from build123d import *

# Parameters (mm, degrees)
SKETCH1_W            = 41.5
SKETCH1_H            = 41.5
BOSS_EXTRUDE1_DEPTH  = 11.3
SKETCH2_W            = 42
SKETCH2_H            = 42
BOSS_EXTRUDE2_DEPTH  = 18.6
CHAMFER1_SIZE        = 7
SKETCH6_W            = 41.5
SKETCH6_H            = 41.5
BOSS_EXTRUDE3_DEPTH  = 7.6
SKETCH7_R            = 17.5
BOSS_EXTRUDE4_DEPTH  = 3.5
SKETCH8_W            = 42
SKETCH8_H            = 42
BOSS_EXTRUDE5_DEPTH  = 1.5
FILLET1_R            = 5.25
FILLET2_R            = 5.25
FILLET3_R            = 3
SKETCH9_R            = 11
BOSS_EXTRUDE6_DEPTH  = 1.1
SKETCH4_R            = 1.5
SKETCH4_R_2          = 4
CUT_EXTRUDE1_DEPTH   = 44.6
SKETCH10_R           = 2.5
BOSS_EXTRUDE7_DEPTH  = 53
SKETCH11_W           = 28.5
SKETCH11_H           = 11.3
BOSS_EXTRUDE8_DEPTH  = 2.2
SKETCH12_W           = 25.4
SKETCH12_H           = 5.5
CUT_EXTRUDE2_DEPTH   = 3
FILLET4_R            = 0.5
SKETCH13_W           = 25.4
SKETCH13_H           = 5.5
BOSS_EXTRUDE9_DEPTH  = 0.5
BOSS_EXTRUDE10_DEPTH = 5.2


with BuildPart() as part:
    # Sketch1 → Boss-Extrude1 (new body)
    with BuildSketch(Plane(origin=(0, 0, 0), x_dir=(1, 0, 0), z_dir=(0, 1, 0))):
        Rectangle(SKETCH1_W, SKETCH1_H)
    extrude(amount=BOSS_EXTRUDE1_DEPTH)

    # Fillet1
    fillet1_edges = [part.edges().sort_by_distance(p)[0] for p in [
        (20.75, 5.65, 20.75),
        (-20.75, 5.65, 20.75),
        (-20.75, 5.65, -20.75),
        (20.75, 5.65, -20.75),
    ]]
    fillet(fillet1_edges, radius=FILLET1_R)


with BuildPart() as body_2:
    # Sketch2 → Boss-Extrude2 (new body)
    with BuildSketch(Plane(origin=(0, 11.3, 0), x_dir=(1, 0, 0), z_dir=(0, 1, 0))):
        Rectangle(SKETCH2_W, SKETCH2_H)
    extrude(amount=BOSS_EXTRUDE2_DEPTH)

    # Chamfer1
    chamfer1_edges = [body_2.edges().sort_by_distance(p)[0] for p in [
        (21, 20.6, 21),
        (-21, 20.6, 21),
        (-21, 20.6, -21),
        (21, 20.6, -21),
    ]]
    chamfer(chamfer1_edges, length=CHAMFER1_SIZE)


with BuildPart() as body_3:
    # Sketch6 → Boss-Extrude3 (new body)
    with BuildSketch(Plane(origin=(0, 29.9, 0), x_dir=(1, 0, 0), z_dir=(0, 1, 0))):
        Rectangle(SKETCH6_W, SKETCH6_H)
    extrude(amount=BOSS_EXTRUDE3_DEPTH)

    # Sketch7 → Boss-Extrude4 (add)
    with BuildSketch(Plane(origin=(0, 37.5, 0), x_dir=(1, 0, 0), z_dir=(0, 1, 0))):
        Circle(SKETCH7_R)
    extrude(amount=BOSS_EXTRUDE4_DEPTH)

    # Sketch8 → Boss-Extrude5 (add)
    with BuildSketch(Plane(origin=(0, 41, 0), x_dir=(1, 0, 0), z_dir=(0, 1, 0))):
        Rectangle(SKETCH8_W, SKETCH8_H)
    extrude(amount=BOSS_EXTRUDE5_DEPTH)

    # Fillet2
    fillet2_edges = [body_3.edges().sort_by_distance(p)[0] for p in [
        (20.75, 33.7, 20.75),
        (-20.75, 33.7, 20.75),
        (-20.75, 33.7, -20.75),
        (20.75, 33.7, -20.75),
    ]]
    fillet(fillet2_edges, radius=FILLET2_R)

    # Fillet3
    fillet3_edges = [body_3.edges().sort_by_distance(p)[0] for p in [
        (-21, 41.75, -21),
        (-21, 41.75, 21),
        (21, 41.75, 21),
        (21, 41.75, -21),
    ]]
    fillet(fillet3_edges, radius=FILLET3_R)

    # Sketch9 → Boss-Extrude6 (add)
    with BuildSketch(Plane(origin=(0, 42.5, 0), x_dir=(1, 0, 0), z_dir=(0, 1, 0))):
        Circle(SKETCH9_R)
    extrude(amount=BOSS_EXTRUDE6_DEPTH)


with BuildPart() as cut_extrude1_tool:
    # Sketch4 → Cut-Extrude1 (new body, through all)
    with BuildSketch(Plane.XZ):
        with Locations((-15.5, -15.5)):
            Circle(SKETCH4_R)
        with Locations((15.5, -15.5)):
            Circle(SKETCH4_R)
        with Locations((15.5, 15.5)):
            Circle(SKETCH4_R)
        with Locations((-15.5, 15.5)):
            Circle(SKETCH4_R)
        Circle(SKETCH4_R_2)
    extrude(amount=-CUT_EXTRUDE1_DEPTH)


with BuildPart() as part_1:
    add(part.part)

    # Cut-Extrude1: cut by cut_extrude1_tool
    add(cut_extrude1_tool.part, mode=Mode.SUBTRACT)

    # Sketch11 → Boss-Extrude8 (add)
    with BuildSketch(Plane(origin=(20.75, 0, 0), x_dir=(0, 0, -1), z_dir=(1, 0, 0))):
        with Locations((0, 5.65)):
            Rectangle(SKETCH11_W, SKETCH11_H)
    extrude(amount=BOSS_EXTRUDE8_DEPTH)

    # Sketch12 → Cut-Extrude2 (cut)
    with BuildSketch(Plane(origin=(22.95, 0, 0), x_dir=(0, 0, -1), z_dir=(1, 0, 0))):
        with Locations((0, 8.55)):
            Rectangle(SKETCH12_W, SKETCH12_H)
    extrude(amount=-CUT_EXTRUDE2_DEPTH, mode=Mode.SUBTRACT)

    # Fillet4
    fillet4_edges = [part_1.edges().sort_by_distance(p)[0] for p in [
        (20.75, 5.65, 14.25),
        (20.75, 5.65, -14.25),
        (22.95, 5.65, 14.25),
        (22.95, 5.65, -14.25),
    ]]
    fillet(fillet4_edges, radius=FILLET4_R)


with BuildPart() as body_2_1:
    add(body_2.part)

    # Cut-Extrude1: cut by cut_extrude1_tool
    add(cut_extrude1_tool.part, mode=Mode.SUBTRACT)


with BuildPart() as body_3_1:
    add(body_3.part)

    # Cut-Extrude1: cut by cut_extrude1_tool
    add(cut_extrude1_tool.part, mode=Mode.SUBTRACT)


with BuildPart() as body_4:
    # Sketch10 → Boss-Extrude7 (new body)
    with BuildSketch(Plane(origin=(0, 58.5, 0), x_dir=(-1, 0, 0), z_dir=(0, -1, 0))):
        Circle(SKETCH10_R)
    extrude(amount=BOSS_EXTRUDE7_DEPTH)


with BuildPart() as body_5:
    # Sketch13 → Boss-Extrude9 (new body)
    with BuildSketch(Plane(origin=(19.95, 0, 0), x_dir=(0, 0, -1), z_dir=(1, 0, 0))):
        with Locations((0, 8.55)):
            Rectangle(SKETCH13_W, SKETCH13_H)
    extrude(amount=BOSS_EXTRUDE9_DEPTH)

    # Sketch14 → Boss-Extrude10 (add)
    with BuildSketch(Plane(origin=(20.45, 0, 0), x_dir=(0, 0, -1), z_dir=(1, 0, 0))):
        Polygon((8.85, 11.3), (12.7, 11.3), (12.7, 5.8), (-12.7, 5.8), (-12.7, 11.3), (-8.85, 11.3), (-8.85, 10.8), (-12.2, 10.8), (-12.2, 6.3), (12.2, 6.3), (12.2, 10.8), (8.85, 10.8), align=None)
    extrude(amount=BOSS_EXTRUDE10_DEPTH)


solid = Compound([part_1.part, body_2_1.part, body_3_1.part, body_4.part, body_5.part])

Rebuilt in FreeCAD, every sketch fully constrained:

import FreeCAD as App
import Part
import Sketcher
from FreeCAD import Vector


def edges_at(feature, points):
    """Names of the edges that pass closest to the given points."""
    edges = feature.Shape.Edges
    near = lambda p: min(range(len(edges)), key=lambda i: edges[i].distToShape(Part.Vertex(*p))[0])
    return sorted({f"Edge{near(p) + 1}" for p in points})

doc = App.newDocument("Part")
body = doc.addObject("PartDesign::Body", "Body")

# Sketch on XZ plane
sketch1 = doc.addObject("Sketcher::SketchObject", "Sketch")
body.addObject(sketch1)
sketch1.AttachmentSupport = (doc.XZ_Plane, [""])
sketch1.MapMode = "FlatFace"
sketch1.addGeometry([
    Part.LineSegment(Vector(-21, -21, 0), Vector(-21, 21, 0)),
    Part.LineSegment(Vector(-21, 21, 0), Vector(21, 21, 0)),
    Part.LineSegment(Vector(21, 21, 0), Vector(21, -21, 0)),
    Part.LineSegment(Vector(21, -21, 0), Vector(-21, -21, 0)),
], False)
sketch1.addConstraint([
    Sketcher.Constraint("Coincident", 0, 2, 1, 1),
    Sketcher.Constraint("Coincident", 1, 2, 2, 1),
    Sketcher.Constraint("Coincident", 2, 2, 3, 1),
    Sketcher.Constraint("Coincident", 3, 2, 0, 1),
    Sketcher.Constraint("Vertical", 0),
    Sketcher.Constraint("Horizontal", 1),
    Sketcher.Constraint("Vertical", 2),
    Sketcher.Constraint("Horizontal", 3),
    Sketcher.Constraint("Symmetric", 0, 2, 2, 2, -1, 1),
    Sketcher.Constraint("Equal", 3, 0),
    Sketcher.Constraint("DistanceX", 1, 1, 1, 2, 41.5),
])
pad1 = doc.addObject("PartDesign::Pad", "Pad")
body.addObject(pad1)
pad1.Profile = sketch1
pad1.Length = 11.3
pad1.Reversed = True
doc.recompute()

fillet = doc.addObject("PartDesign::Fillet", "Fillet")
body.addObject(fillet)
fillet.Base = (pad1, edges_at(pad1, [
    (20.75, 5.65, 20.75),
    (-20.75, 5.65, 20.75),
    (-20.75, 5.65, -20.75),
    (20.75, 5.65, -20.75),
]))
fillet.Radius = 5.25
body2 = doc.addObject("PartDesign::Body", "Body001")

# Sketch on XZ plane
sketch2 = doc.addObject("Sketcher::SketchObject", "Sketch001")
body2.addObject(sketch2)
sketch2.AttachmentSupport = (doc.getObject("XZ_Plane001"), [""])
sketch2.MapMode = "FlatFace"
sketch2.AttachmentOffset = App.Placement(Vector(0, 0, -11.3), App.Rotation())
sketch2.addGeometry([
    Part.LineSegment(Vector(-21, -21, 0), Vector(-21, 21, 0)),
    Part.LineSegment(Vector(-21, 21, 0), Vector(21, 21, 0)),
    Part.LineSegment(Vector(21, 21, 0), Vector(21, -21, 0)),
    Part.LineSegment(Vector(21, -21, 0), Vector(-21, -21, 0)),
], False)
sketch2.addConstraint([
    Sketcher.Constraint("Coincident", 0, 2, 1, 1),
    Sketcher.Constraint("Coincident", 1, 2, 2, 1),
    Sketcher.Constraint("Coincident", 2, 2, 3, 1),
    Sketcher.Constraint("Coincident", 3, 2, 0, 1),
    Sketcher.Constraint("Vertical", 0),
    Sketcher.Constraint("Horizontal", 1),
    Sketcher.Constraint("Vertical", 2),
    Sketcher.Constraint("Horizontal", 3),
    Sketcher.Constraint("Symmetric", 0, 2, 2, 2, -1, 1),
    Sketcher.Constraint("Equal", 3, 0),
    Sketcher.Constraint("DistanceX", 1, 1, 1, 2, 42.0),
])
pad2 = doc.addObject("PartDesign::Pad", "Pad001")
body2.addObject(pad2)
pad2.Profile = sketch2
pad2.Length = 18.6
pad2.Reversed = True
doc.recompute()

chamfer = doc.addObject("PartDesign::Chamfer", "Chamfer")
body2.addObject(chamfer)
chamfer.Base = (pad2, edges_at(pad2, [
    (21, 20.6, 21),
    (-21, 20.6, 21),
    (-21, 20.6, -21),
    (21, 20.6, -21),
]))
chamfer.Size = 7
body3 = doc.addObject("PartDesign::Body", "Body002")

# Sketch on XZ plane
sketch3 = doc.addObject("Sketcher::SketchObject", "Sketch002")
body3.addObject(sketch3)
sketch3.AttachmentSupport = (doc.getObject("XZ_Plane002"), [""])
sketch3.MapMode = "FlatFace"
sketch3.AttachmentOffset = App.Placement(Vector(0, 0, -29.9), App.Rotation())
sketch3.addGeometry([
    Part.LineSegment(Vector(-21, -21, 0), Vector(-21, 21, 0)),
    Part.LineSegment(Vector(-21, 21, 0), Vector(21, 21, 0)),
    Part.LineSegment(Vector(21, 21, 0), Vector(21, -21, 0)),
    Part.LineSegment(Vector(21, -21, 0), Vector(-21, -21, 0)),
], False)
sketch3.addConstraint([
    Sketcher.Constraint("Coincident", 0, 2, 1, 1),
    Sketcher.Constraint("Coincident", 1, 2, 2, 1),
    Sketcher.Constraint("Coincident", 2, 2, 3, 1),
    Sketcher.Constraint("Coincident", 3, 2, 0, 1),
    Sketcher.Constraint("Vertical", 0),
    Sketcher.Constraint("Horizontal", 1),
    Sketcher.Constraint("Vertical", 2),
    Sketcher.Constraint("Horizontal", 3),
    Sketcher.Constraint("Symmetric", 0, 2, 2, 2, -1, 1),
    Sketcher.Constraint("Equal", 3, 0),
    Sketcher.Constraint("DistanceX", 1, 1, 1, 2, 41.5),
])
pad3 = doc.addObject("PartDesign::Pad", "Pad002")
body3.addObject(pad3)
pad3.Profile = sketch3
pad3.Length = 7.6
pad3.Reversed = True

# Sketch on XZ plane
sketch4 = doc.addObject("Sketcher::SketchObject", "Sketch003")
body3.addObject(sketch4)
sketch4.AttachmentSupport = (doc.getObject("XZ_Plane002"), [""])
sketch4.MapMode = "FlatFace"
sketch4.AttachmentOffset = App.Placement(Vector(0, 0, -37.5), App.Rotation())
sketch4.addGeometry(Part.Circle(Vector(0, 0, 0), Vector(0, 0, 1), 18), False)
sketch4.addConstraint([
    Sketcher.Constraint("Coincident", 0, 3, -1, 1),
    Sketcher.Constraint("Diameter", 0, 35.0),
])
pad4 = doc.addObject("PartDesign::Pad", "Pad003")
body3.addObject(pad4)
pad4.Profile = sketch4
pad4.Length = 3.5
pad4.Reversed = True

# Sketch on XZ plane
sketch5 = doc.addObject("Sketcher::SketchObject", "Sketch004")
body3.addObject(sketch5)
sketch5.AttachmentSupport = (doc.getObject("XZ_Plane002"), [""])
sketch5.MapMode = "FlatFace"
sketch5.AttachmentOffset = App.Placement(Vector(0, 0, -41), App.Rotation())
sketch5.addGeometry([
    Part.LineSegment(Vector(-21, -21, 0), Vector(-21, 21, 0)),
    Part.LineSegment(Vector(-21, 21, 0), Vector(21, 21, 0)),
    Part.LineSegment(Vector(21, 21, 0), Vector(21, -21, 0)),
    Part.LineSegment(Vector(21, -21, 0), Vector(-21, -21, 0)),
], False)
sketch5.addConstraint([
    Sketcher.Constraint("Coincident", 0, 2, 1, 1),
    Sketcher.Constraint("Coincident", 1, 2, 2, 1),
    Sketcher.Constraint("Coincident", 2, 2, 3, 1),
    Sketcher.Constraint("Coincident", 3, 2, 0, 1),
    Sketcher.Constraint("Vertical", 0),
    Sketcher.Constraint("Horizontal", 1),
    Sketcher.Constraint("Vertical", 2),
    Sketcher.Constraint("Horizontal", 3),
    Sketcher.Constraint("Symmetric", 0, 2, 2, 2, -1, 1),
    Sketcher.Constraint("Equal", 3, 0),
    Sketcher.Constraint("DistanceX", 1, 1, 1, 2, 42.0),
])
pad5 = doc.addObject("PartDesign::Pad", "Pad004")
body3.addObject(pad5)
pad5.Profile = sketch5
pad5.Length = 1.5
pad5.Reversed = True
doc.recompute()

fillet2 = doc.addObject("PartDesign::Fillet", "Fillet001")
body3.addObject(fillet2)
fillet2.Base = (pad5, edges_at(pad5, [
    (20.75, 33.7, 20.75),
    (-20.75, 33.7, 20.75),
    (-20.75, 33.7, -20.75),
    (20.75, 33.7, -20.75),
]))
fillet2.Radius = 5.25
doc.recompute()

fillet3 = doc.addObject("PartDesign::Fillet", "Fillet002")
body3.addObject(fillet3)
fillet3.Base = (fillet2, edges_at(fillet2, [
    (-21, 41.75, -21),
    (-21, 41.75, 21),
    (21, 41.75, 21),
    (21, 41.75, -21),
]))
fillet3.Radius = 3

# Sketch on XZ plane
sketch6 = doc.addObject("Sketcher::SketchObject", "Sketch005")
body3.addObject(sketch6)
sketch6.AttachmentSupport = (doc.getObject("XZ_Plane002"), [""])
sketch6.MapMode = "FlatFace"
sketch6.AttachmentOffset = App.Placement(Vector(0, 0, -42.5), App.Rotation())
sketch6.addGeometry(Part.Circle(Vector(0, 0, 0), Vector(0, 0, 1), 11), False)
sketch6.addConstraint([
    Sketcher.Constraint("Coincident", 0, 3, -1, 1),
    Sketcher.Constraint("Diameter", 0, 22.0),
])
pad6 = doc.addObject("PartDesign::Pad", "Pad005")
body3.addObject(pad6)
pad6.Profile = sketch6
pad6.Length = 1.1
pad6.Reversed = True
body4 = doc.addObject("PartDesign::Body", "Body003")
body4.AllowCompound = True

# Sketch on XZ plane
sketch7 = doc.addObject("Sketcher::SketchObject", "Sketch006")
body4.addObject(sketch7)
sketch7.AttachmentSupport = (doc.getObject("XZ_Plane003"), [""])
sketch7.MapMode = "FlatFace"
sketch7.addGeometry([
    Part.Circle(Vector(-15.5, -15.5, 0), Vector(0, 0, 1), 1.5),  # 0
    Part.Circle(Vector(15.5, -15.5, 0), Vector(0, 0, 1), 1.5),  # 1
    Part.Circle(Vector(15.5, 15.5, 0), Vector(0, 0, 1), 1.5),  # 2
    Part.Circle(Vector(-15.5, 15.5, 0), Vector(0, 0, 1), 1.5),  # 3
    Part.Circle(Vector(0, 0, 0), Vector(0, 0, 1), 4),  # 4
], False)
sketch7.addConstraint([
    Sketcher.Constraint("Coincident", 4, 3, -1, 1),
    Sketcher.Constraint("Equal", 0, 1),
    Sketcher.Constraint("Equal", 1, 2),
    Sketcher.Constraint("Equal", 2, 3),
    Sketcher.Constraint("Symmetric", 0, 3, 2, 3, -1, 1),
    Sketcher.Constraint("Symmetric", 1, 3, 3, 3, -1, 1),
    Sketcher.Constraint("Symmetric", 0, 3, 1, 3, -2),
    Sketcher.Constraint("Diameter", 0, 3.0),
    Sketcher.Constraint("Diameter", 4, 8.0),
    Sketcher.Constraint("DistanceX", 0, 3, 1, 3, 31.0),
    Sketcher.Constraint("DistanceY", 1, 3, 2, 3, 31.0),
])
pad7 = doc.addObject("PartDesign::Pad", "Pad006")
body4.addObject(pad7)
pad7.Profile = sketch7
pad7.Length = 44.6
pad7.Reversed = True
doc.recompute()

body5 = doc.addObject("PartDesign::Body", "Body004")
body5.BaseFeature = body4
boolean = doc.addObject("PartDesign::Boolean", "Boolean")
body.addObject(boolean)
boolean.Type = "Cut"
boolean.addObjects([body5])
doc.recompute()

# Sketch on YZ plane
sketch8 = doc.addObject("Sketcher::SketchObject", "Sketch007")
body.addObject(sketch8)
sketch8.AttachmentSupport = (doc.YZ_Plane, [""])
sketch8.MapMode = "FlatFace"
sketch8.AttachmentOffset = App.Placement(Vector(0, 0, 20.75), App.Rotation())
sketch8.addGeometry([
    Part.LineSegment(Vector(11, 14, 0), Vector(0, 14, 0)),
    Part.LineSegment(Vector(0, 14, 0), Vector(0, -14, 0)),
    Part.LineSegment(Vector(0, -14, 0), Vector(11, -14, 0)),
    Part.LineSegment(Vector(11, -14, 0), Vector(11, 14, 0)),
], False)
sketch8.addConstraint([
    Sketcher.Constraint("Coincident", 0, 2, 1, 1),
    Sketcher.Constraint("Coincident", 1, 2, 2, 1),
    Sketcher.Constraint("Coincident", 2, 2, 3, 1),
    Sketcher.Constraint("Coincident", 3, 2, 0, 1),
    Sketcher.Constraint("Horizontal", 0),
    Sketcher.Constraint("Vertical", 1),
    Sketcher.Constraint("Horizontal", 2),
    Sketcher.Constraint("Vertical", 3),
    Sketcher.Constraint("Symmetric", 0, 2, 1, 2, -1, 1),
    Sketcher.Constraint("DistanceX", 0, 2, 0, 1, 11.3),
    Sketcher.Constraint("DistanceY", 1, 2, 1, 1, 28.5),
])
pad8 = doc.addObject("PartDesign::Pad", "Pad007")
body.addObject(pad8)
pad8.Profile = sketch8
pad8.Length = 2.2

# Sketch on YZ plane
sketch9 = doc.addObject("Sketcher::SketchObject", "Sketch008")
body.addObject(sketch9)
sketch9.AttachmentSupport = (doc.YZ_Plane, [""])
sketch9.MapMode = "FlatFace"
sketch9.AttachmentOffset = App.Placement(Vector(0, 0, 22.95), App.Rotation())
sketch9.addGeometry([
    Part.LineSegment(Vector(11, 13, 0), Vector(6, 13, 0)),
    Part.LineSegment(Vector(6, 13, 0), Vector(6, -13, 0)),
    Part.LineSegment(Vector(6, -13, 0), Vector(11, -13, 0)),
    Part.LineSegment(Vector(11, -13, 0), Vector(11, 13, 0)),
], False)
sketch9.addConstraint([
    Sketcher.Constraint("Coincident", 0, 2, 1, 1),
    Sketcher.Constraint("Coincident", 1, 2, 2, 1),
    Sketcher.Constraint("Coincident", 2, 2, 3, 1),
    Sketcher.Constraint("Coincident", 3, 2, 0, 1),
    Sketcher.Constraint("Horizontal", 0),
    Sketcher.Constraint("Vertical", 1),
    Sketcher.Constraint("Horizontal", 2),
    Sketcher.Constraint("Vertical", 3),
    Sketcher.Constraint("DistanceX", 0, 2, 0, 1, 5.5),
    Sketcher.Constraint("DistanceY", 1, 2, 1, 1, 25.4),
    Sketcher.Constraint("DistanceX", -1, 1, 0, 2, 5.8),
    Sketcher.Constraint("DistanceY", -1, 1, 0, 2, 12.7),
])
pocket1 = doc.addObject("PartDesign::Pocket", "Pocket")
body.addObject(pocket1)
pocket1.Profile = sketch9
pocket1.Length = 3
doc.recompute()

fillet4 = doc.addObject("PartDesign::Fillet", "Fillet003")
body.addObject(fillet4)
fillet4.Base = (pocket1, edges_at(pocket1, [
    (20.75, 5.65, 14.25),
    (20.75, 5.65, -14.25),
    (22.95, 5.65, 14.25),
    (22.95, 5.65, -14.25),
]))
fillet4.Radius = 0.5
doc.recompute()

body6 = doc.addObject("PartDesign::Body", "Body005")
body6.BaseFeature = body4
boolean2 = doc.addObject("PartDesign::Boolean", "Boolean001")
body2.addObject(boolean2)
boolean2.Type = "Cut"
boolean2.addObjects([body6])
doc.recompute()

boolean3 = doc.addObject("PartDesign::Boolean", "Boolean002")
body3.addObject(boolean3)
boolean3.Type = "Cut"
boolean3.addObjects([body4])
body7 = doc.addObject("PartDesign::Body", "Body006")

# Sketch on XZ plane
sketch10 = doc.addObject("Sketcher::SketchObject", "Sketch009")
body7.addObject(sketch10)
sketch10.AttachmentSupport = (doc.getObject("XZ_Plane006"), [""])
sketch10.MapMode = "FlatFace"
sketch10.AttachmentOffset = App.Placement(Vector(0, 0, -58.5), App.Rotation())
sketch10.addGeometry(Part.Circle(Vector(0, 0, 0), Vector(0, 0, 1), 2.5), False)
sketch10.addConstraint([
    Sketcher.Constraint("Coincident", 0, 3, -1, 1),
    Sketcher.Constraint("Diameter", 0, 5.0),
])
pad9 = doc.addObject("PartDesign::Pad", "Pad008")
body7.addObject(pad9)
pad9.Profile = sketch10
pad9.Length = 53
body8 = doc.addObject("PartDesign::Body", "Body007")

# Sketch on YZ plane
sketch11 = doc.addObject("Sketcher::SketchObject", "Sketch010")
body8.addObject(sketch11)
sketch11.AttachmentSupport = (doc.getObject("YZ_Plane007"), [""])
sketch11.MapMode = "FlatFace"
sketch11.AttachmentOffset = App.Placement(Vector(0, 0, 19.95), App.Rotation())
sketch11.addGeometry([
    Part.LineSegment(Vector(11, 13, 0), Vector(6, 13, 0)),
    Part.LineSegment(Vector(6, 13, 0), Vector(6, -13, 0)),
    Part.LineSegment(Vector(6, -13, 0), Vector(11, -13, 0)),
    Part.LineSegment(Vector(11, -13, 0), Vector(11, 13, 0)),
], False)
sketch11.addConstraint([
    Sketcher.Constraint("Coincident", 0, 2, 1, 1),
    Sketcher.Constraint("Coincident", 1, 2, 2, 1),
    Sketcher.Constraint("Coincident", 2, 2, 3, 1),
    Sketcher.Constraint("Coincident", 3, 2, 0, 1),
    Sketcher.Constraint("Horizontal", 0),
    Sketcher.Constraint("Vertical", 1),
    Sketcher.Constraint("Horizontal", 2),
    Sketcher.Constraint("Vertical", 3),
    Sketcher.Constraint("DistanceX", 0, 2, 0, 1, 5.5),
    Sketcher.Constraint("DistanceY", 1, 2, 1, 1, 25.4),
    Sketcher.Constraint("DistanceX", -1, 1, 0, 2, 5.8),
    Sketcher.Constraint("DistanceY", -1, 1, 0, 2, 12.7),
])
pad10 = doc.addObject("PartDesign::Pad", "Pad009")
body8.addObject(pad10)
pad10.Profile = sketch11
pad10.Length = 0.5

# Sketch on YZ plane
sketch12 = doc.addObject("Sketcher::SketchObject", "Sketch011")
body8.addObject(sketch12)
sketch12.AttachmentSupport = (doc.getObject("YZ_Plane007"), [""])
sketch12.MapMode = "FlatFace"
sketch12.AttachmentOffset = App.Placement(Vector(0, 0, 20.45), App.Rotation())
sketch12.addGeometry([
    Part.LineSegment(Vector(11.3, -12.7, 0), Vector(11.3, -8.8, 0)),  # 0
    Part.LineSegment(Vector(11.3, -8.8, 0), Vector(10.8, -8.8, 0)),  # 1
    Part.LineSegment(Vector(10.8, -8.8, 0), Vector(10.8, -12.2, 0)),  # 2
    Part.LineSegment(Vector(10.8, -12.2, 0), Vector(6.3, -12.2, 0)),  # 3
    Part.LineSegment(Vector(6.3, -12.2, 0), Vector(6.3, 12.2, 0)),  # 4
    Part.LineSegment(Vector(6.3, 12.2, 0), Vector(10.8, 12.2, 0)),  # 5
    Part.LineSegment(Vector(10.8, 12.2, 0), Vector(10.8, 8.8, 0)),  # 6
    Part.LineSegment(Vector(10.8, 8.8, 0), Vector(11.3, 8.8, 0)),  # 7
    Part.LineSegment(Vector(11.3, 8.8, 0), Vector(11.3, 12.7, 0)),  # 8
    Part.LineSegment(Vector(11.3, 12.7, 0), Vector(5.8, 12.7, 0)),  # 9
    Part.LineSegment(Vector(5.8, 12.7, 0), Vector(5.8, -12.7, 0)),  # 10
    Part.LineSegment(Vector(5.8, -12.7, 0), Vector(11.3, -12.7, 0)),  # 11
], False)
sketch12.addConstraint([
    Sketcher.Constraint("Coincident", 0, 2, 1, 1),
    Sketcher.Constraint("Coincident", 1, 2, 2, 1),
    Sketcher.Constraint("Coincident", 2, 2, 3, 1),
    Sketcher.Constraint("Coincident", 3, 2, 4, 1),
    Sketcher.Constraint("Coincident", 4, 2, 5, 1),
    Sketcher.Constraint("Coincident", 5, 2, 6, 1),
    Sketcher.Constraint("Coincident", 6, 2, 7, 1),
    Sketcher.Constraint("Coincident", 7, 2, 8, 1),
    Sketcher.Constraint("Coincident", 8, 2, 9, 1),
    Sketcher.Constraint("Coincident", 9, 2, 10, 1),
    Sketcher.Constraint("Coincident", 10, 2, 11, 1),
    Sketcher.Constraint("Coincident", 11, 2, 0, 1),
    Sketcher.Constraint("Vertical", 0),
    Sketcher.Constraint("Horizontal", 1),
    Sketcher.Constraint("Vertical", 2),
    Sketcher.Constraint("Horizontal", 3),
    Sketcher.Constraint("Vertical", 4),
    Sketcher.Constraint("Horizontal", 5),
    Sketcher.Constraint("Vertical", 6),
    Sketcher.Constraint("Horizontal", 7),
    Sketcher.Constraint("Vertical", 8),
    Sketcher.Constraint("Horizontal", 9),
    Sketcher.Constraint("Vertical", 10),
    Sketcher.Constraint("Horizontal", 11),
    Sketcher.Constraint("Symmetric", 2, 2, 5, 2, -1),
    Sketcher.Constraint("Symmetric", 0, 2, 7, 2, -1),
    Sketcher.Constraint("Equal", 0, 8),
    Sketcher.Constraint("DistanceX", 1, 2, 1, 1, 0.5),
    Sketcher.Constraint("DistanceX", 3, 2, 3, 1, 4.5),
    Sketcher.Constraint("DistanceX", 9, 2, 9, 1, 5.5),
    Sketcher.Constraint("DistanceY", 4, 1, 4, 2, 24.4),
    Sketcher.Constraint("DistanceY", 10, 2, 10, 1, 25.4),
    Sketcher.Constraint("DistanceY", 0, 1, 0, 2, 3.85),
    Sketcher.Constraint("DistanceX", -1, 1, 0, 2, 11.3),
])
pad11 = doc.addObject("PartDesign::Pad", "Pad010")
body8.addObject(pad11)
pad11.Profile = sketch12
pad11.Length = 5.2

doc.recompute()
